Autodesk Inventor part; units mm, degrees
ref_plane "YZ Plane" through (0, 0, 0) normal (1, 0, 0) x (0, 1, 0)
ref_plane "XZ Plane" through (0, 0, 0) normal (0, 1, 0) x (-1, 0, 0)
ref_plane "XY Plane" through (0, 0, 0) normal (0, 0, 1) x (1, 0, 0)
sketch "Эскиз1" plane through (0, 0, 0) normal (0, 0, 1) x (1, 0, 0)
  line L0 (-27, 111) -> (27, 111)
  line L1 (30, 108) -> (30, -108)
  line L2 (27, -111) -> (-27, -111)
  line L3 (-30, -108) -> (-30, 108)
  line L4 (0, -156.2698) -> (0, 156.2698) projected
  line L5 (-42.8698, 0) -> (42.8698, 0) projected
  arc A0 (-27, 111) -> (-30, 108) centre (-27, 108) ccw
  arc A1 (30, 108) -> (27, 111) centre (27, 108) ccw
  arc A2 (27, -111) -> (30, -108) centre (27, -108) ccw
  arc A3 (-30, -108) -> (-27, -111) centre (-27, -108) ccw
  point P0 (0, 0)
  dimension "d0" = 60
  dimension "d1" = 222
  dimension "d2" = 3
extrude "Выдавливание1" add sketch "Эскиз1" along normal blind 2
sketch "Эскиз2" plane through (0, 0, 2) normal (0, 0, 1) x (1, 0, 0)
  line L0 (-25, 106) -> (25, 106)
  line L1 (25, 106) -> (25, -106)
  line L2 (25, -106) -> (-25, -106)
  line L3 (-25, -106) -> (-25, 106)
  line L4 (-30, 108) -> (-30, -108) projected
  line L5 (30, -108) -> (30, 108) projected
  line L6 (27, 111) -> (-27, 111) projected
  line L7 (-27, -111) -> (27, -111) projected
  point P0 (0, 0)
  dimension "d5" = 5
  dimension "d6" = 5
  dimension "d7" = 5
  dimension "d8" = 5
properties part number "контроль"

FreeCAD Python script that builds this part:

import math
import FreeCAD as App
import Part
import Sketcher

V = App.Vector

doc = App.newDocument("Part")
body = doc.addObject("PartDesign::Body", "Body")

sketch1 = doc.addObject("Sketcher::SketchObject", "Sketch")
body.addObject(sketch1)
sketch1.AttachmentSupport = (doc.XY_Plane, [""])
sketch1.MapMode = "FlatFace"
sketch1.addGeometry([
    Part.ArcOfCircle(Part.Circle(V(-27, 108, 0), V(0, 0, 1), 3), math.radians(90), math.radians(180)),
    Part.LineSegment(V(-30, 108, 0), V(-30, -108, 0)),
    Part.ArcOfCircle(Part.Circle(V(-27, -108, 0), V(0, 0, 1), 3), math.radians(180), math.radians(270)),
    Part.LineSegment(V(-27, -111, 0), V(27, -111, 0)),
    Part.ArcOfCircle(Part.Circle(V(27, -108, 0), V(0, 0, 1), 3), math.radians(-90), math.radians(0)),
    Part.LineSegment(V(30, -108, 0), V(30, 108, 0)),
    Part.ArcOfCircle(Part.Circle(V(27, 108, 0), V(0, 0, 1), 3), math.radians(0), math.radians(90)),
    Part.LineSegment(V(27, 111, 0), V(-27, 111, 0)),
], False)
sketch1.addConstraint([
    Sketcher.Constraint("Tangent", 0, 2, 1, 1),
    Sketcher.Constraint("Tangent", 1, 2, 2, 1),
    Sketcher.Constraint("Tangent", 2, 2, 3, 1),
    Sketcher.Constraint("Tangent", 3, 2, 4, 1),
    Sketcher.Constraint("Tangent", 4, 2, 5, 1),
    Sketcher.Constraint("Tangent", 5, 2, 6, 1),
    Sketcher.Constraint("Tangent", 6, 2, 7, 1),
    Sketcher.Constraint("Tangent", 7, 2, 0, 1),
    Sketcher.Constraint("Vertical", 1),
    Sketcher.Constraint("Horizontal", 3),
    Sketcher.Constraint("Vertical", 5),
    Sketcher.Constraint("Horizontal", 7),
    Sketcher.Constraint("Equal", 0, 2),
    Sketcher.Constraint("Equal", 2, 4),
    Sketcher.Constraint("Equal", 4, 6),
    Sketcher.Constraint("Symmetric", 0, 3, 4, 3, -1, 1),
    Sketcher.Constraint("Radius", 0, 3.0),
    Sketcher.Constraint("DistanceX", 1, 2, 4, 2, 60.0),
    Sketcher.Constraint("DistanceY", 1, 2, 1, 1, 216.0),
])
pad1 = doc.addObject("PartDesign::Pad", "Pad")
body.addObject(pad1)
pad1.Profile = sketch1
pad1.Length = 2

doc.recompute()
